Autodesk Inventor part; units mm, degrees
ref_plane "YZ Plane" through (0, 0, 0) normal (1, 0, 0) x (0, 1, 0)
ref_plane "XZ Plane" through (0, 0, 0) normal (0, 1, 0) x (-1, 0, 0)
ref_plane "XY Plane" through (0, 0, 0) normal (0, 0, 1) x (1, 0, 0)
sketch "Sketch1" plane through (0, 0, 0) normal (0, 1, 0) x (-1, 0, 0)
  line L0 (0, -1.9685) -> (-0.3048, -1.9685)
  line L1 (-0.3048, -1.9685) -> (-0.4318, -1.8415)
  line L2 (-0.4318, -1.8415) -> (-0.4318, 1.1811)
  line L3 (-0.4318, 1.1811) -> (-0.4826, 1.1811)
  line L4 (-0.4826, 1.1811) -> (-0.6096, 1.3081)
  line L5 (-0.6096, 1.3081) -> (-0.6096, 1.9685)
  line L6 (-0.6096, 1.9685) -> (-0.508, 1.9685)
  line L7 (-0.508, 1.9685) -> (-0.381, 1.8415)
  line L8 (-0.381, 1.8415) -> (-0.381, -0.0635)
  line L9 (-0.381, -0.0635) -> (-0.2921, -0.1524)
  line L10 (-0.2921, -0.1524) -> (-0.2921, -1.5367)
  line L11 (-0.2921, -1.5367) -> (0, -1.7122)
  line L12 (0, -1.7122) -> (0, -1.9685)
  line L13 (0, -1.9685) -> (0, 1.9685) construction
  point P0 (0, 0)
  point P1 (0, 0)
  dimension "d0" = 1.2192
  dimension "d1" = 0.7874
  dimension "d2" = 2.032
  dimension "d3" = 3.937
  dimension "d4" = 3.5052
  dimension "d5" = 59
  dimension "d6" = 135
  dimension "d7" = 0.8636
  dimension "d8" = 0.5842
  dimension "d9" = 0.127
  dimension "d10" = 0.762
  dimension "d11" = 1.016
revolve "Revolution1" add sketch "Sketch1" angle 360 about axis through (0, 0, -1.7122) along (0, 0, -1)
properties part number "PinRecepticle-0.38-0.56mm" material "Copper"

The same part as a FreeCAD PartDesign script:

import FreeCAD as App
import Part
import Sketcher

V = App.Vector
Q = App.Units.Quantity


def add_polygon(sketch, points):
    """Adds a closed chain of lines whose ends are joined by coincident constraints."""
    first, n = sketch.GeometryCount, len(points)
    for a, b in zip(points, points[1:] + points[:1]):
        sketch.addGeometry(Part.LineSegment(App.Vector(*a, 0), App.Vector(*b, 0)), False)
    for i in range(n):
        sketch.addConstraint(Sketcher.Constraint("Coincident", first + i, 2, first + (i + 1) % n, 1))

doc = App.newDocument("Part")
body = doc.addObject("PartDesign::Body", "Body")

sketch1 = body.newObject("Sketcher::SketchObject", "Sketch")
sketch1.AttachmentSupport = (doc.getObject("XZ_Plane"), [""])
sketch1.MapMode = "FlatFace"
add_polygon(sketch1, [(0.3048, -1.9685), (0, -1.9685), (0, -1.7122), (0.2921, -1.5367), (0.2921, -0.1524), (0.381, -0.0635), (0.381, 1.8415), (0.508, 1.9685), (0.6096, 1.9685), (0.6096, 1.3081), (0.4826, 1.1811), (0.4318, 1.1811), (0.4318, -1.8415)])
sketch1.addConstraint(Sketcher.Constraint("Horizontal", 0))
sketch1.addConstraint(Sketcher.Constraint("Vertical", 1))
sketch1.addConstraint(Sketcher.Constraint("Vertical", 3))
sketch1.addConstraint(Sketcher.Constraint("Vertical", 5))
sketch1.addConstraint(Sketcher.Constraint("Horizontal", 7))
sketch1.addConstraint(Sketcher.Constraint("Vertical", 8))
sketch1.addConstraint(Sketcher.Constraint("Horizontal", 10))
sketch1.addConstraint(Sketcher.Constraint("Vertical", 11))
sketch1.addConstraint(Sketcher.Constraint("PointOnObject", 0, 2, -2))
sketch1.addConstraint(Sketcher.Constraint("Parallel", 4, 6))
sketch1.addConstraint(Sketcher.Constraint("Parallel", 6, 9))
sketch1.addConstraint(Sketcher.Constraint("Parallel", 9, 12))
sketch1.addConstraint(Sketcher.Constraint("Equal", 6, 9))
sketch1.addConstraint(Sketcher.Constraint("Equal", 9, 12))
sketch1.addConstraint(Sketcher.Constraint("Angle", 9, Q("-135 deg")))
sketch1.addConstraint(Sketcher.Constraint("DistanceY", 4, 2, 6, 2, Q("0.08 in")))
sketch1.addConstraint(Sketcher.Constraint("DistanceX", 5, 2, 6, 2, Q("0.005 in")))
sketch1.addConstraint(Sketcher.Constraint("DistanceY", 2, 2, 6, 2, Q("0.138 in")))
sketch1.addConstraint(Sketcher.Constraint("DistanceY", 9, 2, 6, 2, Q("0.031 in")))
sketch1.addConstraint(Sketcher.Constraint("DistanceX", 0, 2, 0, 1, Q("0.012 in")))
sketch1.addConstraint(Sketcher.Constraint("DistanceX", 7, 1, 7, 2, Q("0.004 in")))
sketch1.addConstraint(Sketcher.Constraint("DistanceX", 10, 2, 10, 1, Q("0.002 in")))
sketch1.addConstraint(Sketcher.Constraint("DistanceY", 11, 2, 11, 1, Q("0.119 in")))
sketch1.addConstraint(Sketcher.Constraint("DistanceY", 1, 1, 1, 2, Q("0.0101 in")))
sketch1.addConstraint(Sketcher.Constraint("DistanceY", 3, 1, 3, 2, Q("0.0545 in")))
sketch1.addConstraint(Sketcher.Constraint("DistanceY", 3, 2, -1, 1, Q("0.006 in")))
revolution = body.newObject("PartDesign::Revolution", "Revolution")
revolution.Profile = sketch1
revolution.ReferenceAxis = (sketch1, ["V_Axis"])
revolution.Angle = 360

doc.recompute()
